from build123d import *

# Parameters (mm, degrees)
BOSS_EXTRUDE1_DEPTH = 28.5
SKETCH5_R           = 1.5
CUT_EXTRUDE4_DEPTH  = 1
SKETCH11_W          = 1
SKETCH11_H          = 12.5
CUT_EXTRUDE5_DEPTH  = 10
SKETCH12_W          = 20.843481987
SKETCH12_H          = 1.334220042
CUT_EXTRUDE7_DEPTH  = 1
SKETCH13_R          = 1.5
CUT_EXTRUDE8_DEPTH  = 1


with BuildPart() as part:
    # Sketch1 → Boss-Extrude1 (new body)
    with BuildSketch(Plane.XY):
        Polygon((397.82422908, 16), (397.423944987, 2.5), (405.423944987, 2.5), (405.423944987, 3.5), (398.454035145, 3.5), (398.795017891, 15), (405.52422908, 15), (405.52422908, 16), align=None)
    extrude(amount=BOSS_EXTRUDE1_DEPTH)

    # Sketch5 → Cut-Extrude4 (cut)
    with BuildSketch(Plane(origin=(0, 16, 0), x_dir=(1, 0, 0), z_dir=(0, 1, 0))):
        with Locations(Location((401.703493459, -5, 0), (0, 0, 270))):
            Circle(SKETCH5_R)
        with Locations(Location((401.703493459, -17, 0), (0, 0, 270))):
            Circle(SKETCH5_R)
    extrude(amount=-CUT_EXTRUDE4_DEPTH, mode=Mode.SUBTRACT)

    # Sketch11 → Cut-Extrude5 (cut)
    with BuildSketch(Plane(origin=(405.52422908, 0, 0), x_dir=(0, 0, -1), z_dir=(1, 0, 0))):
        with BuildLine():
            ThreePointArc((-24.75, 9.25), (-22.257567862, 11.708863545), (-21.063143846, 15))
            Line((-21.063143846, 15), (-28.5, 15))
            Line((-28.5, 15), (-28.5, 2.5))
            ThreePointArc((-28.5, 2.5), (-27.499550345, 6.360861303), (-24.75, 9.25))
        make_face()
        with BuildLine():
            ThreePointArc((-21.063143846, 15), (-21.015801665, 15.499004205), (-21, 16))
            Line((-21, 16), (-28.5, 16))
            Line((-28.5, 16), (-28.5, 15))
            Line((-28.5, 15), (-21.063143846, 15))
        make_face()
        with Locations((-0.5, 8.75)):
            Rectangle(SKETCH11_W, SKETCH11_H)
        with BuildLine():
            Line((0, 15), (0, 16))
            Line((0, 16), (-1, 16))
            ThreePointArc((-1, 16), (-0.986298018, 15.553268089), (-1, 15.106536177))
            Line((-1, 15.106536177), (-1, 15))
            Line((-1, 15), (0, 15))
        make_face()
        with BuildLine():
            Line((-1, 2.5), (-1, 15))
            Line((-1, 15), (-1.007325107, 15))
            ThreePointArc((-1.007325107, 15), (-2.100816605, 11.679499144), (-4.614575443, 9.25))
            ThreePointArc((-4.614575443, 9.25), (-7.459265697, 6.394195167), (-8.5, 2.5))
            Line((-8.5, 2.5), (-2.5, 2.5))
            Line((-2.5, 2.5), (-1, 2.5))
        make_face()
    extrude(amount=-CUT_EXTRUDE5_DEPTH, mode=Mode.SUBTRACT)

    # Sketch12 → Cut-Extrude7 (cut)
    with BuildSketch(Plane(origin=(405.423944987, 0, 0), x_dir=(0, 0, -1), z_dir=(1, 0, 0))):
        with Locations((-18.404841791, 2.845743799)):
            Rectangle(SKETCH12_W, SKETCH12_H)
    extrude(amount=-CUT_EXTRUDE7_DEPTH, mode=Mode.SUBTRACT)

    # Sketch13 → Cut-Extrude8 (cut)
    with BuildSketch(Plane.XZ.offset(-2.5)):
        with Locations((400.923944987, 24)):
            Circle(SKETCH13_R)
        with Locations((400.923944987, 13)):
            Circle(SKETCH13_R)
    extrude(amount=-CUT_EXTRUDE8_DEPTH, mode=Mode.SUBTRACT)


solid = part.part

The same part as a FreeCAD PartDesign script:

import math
import FreeCAD as App
import Part
import Sketcher
from FreeCAD import Vector
Q = App.Units.Quantity

doc = App.newDocument("Part")
body = doc.addObject("PartDesign::Body", "Body")

sketch1 = body.newObject("Sketcher::SketchObject", "Sketch")
sketch1.AttachmentSupport = (doc.getObject("XY_Plane"), [""])
sketch1.MapMode = "FlatFace"
sketch1.addGeometry([
    Part.LineSegment(Vector(397.824229, 16, 0), Vector(397.423945, 2.5, 0)),
    Part.LineSegment(Vector(397.423945, 2.5, 0), Vector(405.423945, 2.5, 0)),
    Part.LineSegment(Vector(405.423945, 2.5, 0), Vector(405.423945, 3.5, 0)),
    Part.LineSegment(Vector(405.423945, 3.5, 0), Vector(398.454035, 3.5, 0)),
    Part.LineSegment(Vector(398.454035, 3.5, 0), Vector(398.795018, 15, 0)),
    Part.LineSegment(Vector(398.795018, 15, 0), Vector(405.524229, 15, 0)),
    Part.LineSegment(Vector(405.524229, 15, 0), Vector(405.524229, 16, 0)),
    Part.LineSegment(Vector(405.524229, 16, 0), Vector(397.824229, 16, 0)),
], False)
sketch1.addConstraint([
    Sketcher.Constraint("Coincident", 0, 2, 1, 1),
    Sketcher.Constraint("Coincident", 1, 2, 2, 1),
    Sketcher.Constraint("Coincident", 2, 2, 3, 1),
    Sketcher.Constraint("Coincident", 3, 2, 4, 1),
    Sketcher.Constraint("Coincident", 4, 2, 5, 1),
    Sketcher.Constraint("Coincident", 5, 2, 6, 1),
    Sketcher.Constraint("Coincident", 6, 2, 7, 1),
    Sketcher.Constraint("Coincident", 7, 2, 0, 1),
    Sketcher.Constraint("Horizontal", 1),
    Sketcher.Constraint("Vertical", 2),
    Sketcher.Constraint("Horizontal", 3),
    Sketcher.Constraint("Horizontal", 5),
    Sketcher.Constraint("Vertical", 6),
    Sketcher.Constraint("Horizontal", 7),
    Sketcher.Constraint("Parallel", 0, 4),
    Sketcher.Constraint("Equal", 2, 6),
    Sketcher.Constraint("DistanceX", 1, 1, 1, 2, Q("8 mm")),
    Sketcher.Constraint("DistanceY", 2, 1, 2, 2, Q("1 mm")),
    Sketcher.Constraint("DistanceX", 7, 2, 7, 1, Q("7.7 mm")),
    Sketcher.Constraint("DistanceY", -1, 1, 4, 2, Q("15 mm")),
    Sketcher.Constraint("DistanceY", -1, 1, 0, 2, Q("2.5 mm")),
    Sketcher.Constraint("DistanceX", 3, 2, 3, 1, Q("6.96991 mm")),
    Sketcher.Constraint("DistanceX", 5, 1, 5, 2, Q("6.729211 mm")),
    Sketcher.Constraint("DistanceX", -1, 1, 5, 2, Q("405.524229 mm")),
])
pad1 = body.newObject("PartDesign::Pad", "Pad")
pad1.Profile = sketch1
pad1.Length = 28.5

sketch2 = body.newObject("Sketcher::SketchObject", "Sketch001")
sketch2.AttachmentSupport = (doc.getObject("XZ_Plane"), [""])
sketch2.MapMode = "FlatFace"
sketch2.AttachmentOffset = App.Placement(Vector(0, 0, -16), App.Rotation())
sketch2.addGeometry([
    Part.Circle(Vector(401.703493, 5, 0), Vector(0, 0, 1), 1.5),
    Part.Circle(Vector(401.703493, 17, 0), Vector(0, 0, 1), 1.5),
], False)
sketch2.addConstraint([
    Sketcher.Constraint("Equal", 0, 1),
    Sketcher.Constraint("Vertical", 0, 3, 1, 3),
    Sketcher.Constraint("Diameter", 0, Q("3 mm")),
    Sketcher.Constraint("DistanceY", -1, 1, 0, 3, Q("5 mm")),
    Sketcher.Constraint("DistanceY", -1, 1, 1, 3, Q("17 mm")),
    Sketcher.Constraint("DistanceX", -1, 1, 0, 3, Q("401.703493 mm")),
])
pocket1 = body.newObject("PartDesign::Pocket", "Pocket")
pocket1.Profile = sketch2
pocket1.Length = 1
pocket1.Reversed = True

sketch3 = body.newObject("Sketcher::SketchObject", "Sketch002")
sketch3.AttachmentSupport = (doc.getObject("YZ_Plane"), [""])
sketch3.MapMode = "FlatFace"
sketch3.AttachmentOffset = App.Placement(Vector(0, 0, 405.524229), App.Rotation())
sketch3.addGeometry([
    Part.ArcOfCircle(Part.Circle(Vector(16, 28.95, 0), Vector(0, 0, 1), 7.95), math.radians(-148.109208), math.radians(-97.226158)),
    Part.ArcOfCircle(Part.Circle(Vector(16, 28.95, 0), Vector(0, 0, 1), 7.95), math.radians(-97.226158), math.radians(-90)),
    Part.LineSegment(Vector(16, 21, 0), Vector(16, 28.5, 0)),
    Part.LineSegment(Vector(16, 28.5, 0), Vector(2.5, 28.5, 0)),
    Part.ArcOfCircle(Part.Circle(Vector(2.5, 20.55, 0), Vector(0, 0, 1), 7.95), math.radians(31.890792), math.radians(90)),
    Part.LineSegment(Vector(2.5, 0, 0), Vector(16, 0, 0)),
    Part.LineSegment(Vector(16, 0, 0), Vector(16, 1, 0)),
    Part.ArcOfCircle(Part.Circle(Vector(15.553268, 8.27565, 0), Vector(0, 0, 1), 7.289352), math.radians(-93.513605), math.radians(-86.486395)),
    Part.LineSegment(Vector(15.106536, 1, 0), Vector(15, 1, 0)),
    Part.LineSegment(Vector(15, 1, 0), Vector(15, 1.007325, 0)),
    Part.ArcOfCircle(Part.Circle(Vector(15.553268, 8.27565, 0), Vector(0, 0, 1), 7.289352), math.radians(-149.85105), math.radians(-94.352985)),
    Part.ArcOfCircle(Part.Circle(Vector(2.5, 0.694029, 0), Vector(0, 0, 1), 7.805971), math.radians(30.14895), math.radians(90)),
    Part.LineSegment(Vector(2.5, 8.5, 0), Vector(2.5, 0, 0)),
], False)
sketch3.addConstraint([
    Sketcher.Constraint("Tangent", 0, 2, 1, 1),
    Sketcher.Constraint("Coincident", 1, 2, 2, 1),
    Sketcher.Constraint("Coincident", 2, 2, 3, 1),
    Sketcher.Constraint("Tangent", 3, 2, 4, 2),
    Sketcher.Constraint("Tangent", 4, 1, 0, 1),
    Sketcher.Constraint("Coincident", 5, 2, 6, 1),
    Sketcher.Constraint("Coincident", 6, 2, 7, 2),
    Sketcher.Constraint("Coincident", 7, 1, 8, 1),
    Sketcher.Constraint("Coincident", 8, 2, 9, 1),
    Sketcher.Constraint("Coincident", 9, 2, 10, 2),
    Sketcher.Constraint("Tangent", 10, 1, 11, 1),
    Sketcher.Constraint("Coincident", 11, 2, 12, 1),
    Sketcher.Constraint("Coincident", 12, 2, 5, 1),
    Sketcher.Constraint("Vertical", 2),
    Sketcher.Constraint("Horizontal", 3),
    Sketcher.Constraint("Horizontal", 5),
    Sketcher.Constraint("Vertical", 6),
    Sketcher.Constraint("Horizontal", 8),
    Sketcher.Constraint("Vertical", 9),
    Sketcher.Constraint("Vertical", 12),
    Sketcher.Constraint("Coincident", 10, 3, 7, 3),
    Sketcher.Constraint("Equal", 0, 1),
    Sketcher.Constraint("Equal", 1, 4),
    Sketcher.Constraint("Equal", 7, 10),
    Sketcher.Constraint("PointOnObject", 5, 2, -1),
    Sketcher.Constraint("Horizontal", 6, 2, 7, 1),
    Sketcher.Constraint("Vertical", 4, 3, 11, 3),
    Sketcher.Constraint("Vertical", 0, 3, 1, 2),
    Sketcher.Constraint("Vertical", 2, 2, 5, 2),
    Sketcher.Constraint("Vertical", 0, 2, 8, 2),
    Sketcher.Constraint("Vertical", 4, 1, 10, 1),
    Sketcher.Constraint("Vertical", 3, 2, 11, 2),
    Sketcher.Constraint("DistanceY", 6, 1, 6, 2, Q("1 mm")),
    Sketcher.Constraint("Radius", 0, Q("7.95 mm")),
    Sketcher.Constraint("DistanceX", 3, 2, 3, 1, Q("13.5 mm")),
    Sketcher.Constraint("DistanceY", 12, 2, 12, 1, Q("8.5 mm")),
    Sketcher.Constraint("DistanceX", -1, 1, 0, 3, Q("16 mm")),
    Sketcher.Constraint("DistanceX", -1, 1, 0, 2, Q("15 mm")),
    Sketcher.Constraint("DistanceY", -1, 1, 1, 2, Q("21 mm")),
    Sketcher.Constraint("Radius", 11, Q("7.805971 mm")),
])
pocket2 = body.newObject("PartDesign::Pocket", "Pocket001")
pocket2.Profile = sketch3
pocket2.Length = 10

sketch4 = body.newObject("Sketcher::SketchObject", "Sketch003")
sketch4.AttachmentSupport = (doc.getObject("YZ_Plane"), [""])
sketch4.MapMode = "FlatFace"
sketch4.AttachmentOffset = App.Placement(Vector(0, 0, 405.423945), App.Rotation())
sketch4.addGeometry([
    Part.LineSegment(Vector(3.512854, 28.826583, 0), Vector(2.178634, 28.826583, 0)),
    Part.LineSegment(Vector(2.178634, 28.826583, 0), Vector(2.178634, 7.983101, 0)),
    Part.LineSegment(Vector(2.178634, 7.983101, 0), Vector(3.512854, 7.983101, 0)),
    Part.LineSegment(Vector(3.512854, 7.983101, 0), Vector(3.512854, 28.826583, 0)),
], False)
sketch4.addConstraint([
    Sketcher.Constraint("Coincident", 0, 2, 1, 1),
    Sketcher.Constraint("Coincident", 1, 2, 2, 1),
    Sketcher.Constraint("Coincident", 2, 2, 3, 1),
    Sketcher.Constraint("Coincident", 3, 2, 0, 1),
    Sketcher.Constraint("Horizontal", 0),
    Sketcher.Constraint("Vertical", 1),
    Sketcher.Constraint("Horizontal", 2),
    Sketcher.Constraint("Vertical", 3),
    Sketcher.Constraint("DistanceX", 0, 2, 0, 1, Q("1.33422 mm")),
    Sketcher.Constraint("DistanceY", 1, 2, 1, 1, Q("20.843482 mm")),
    Sketcher.Constraint("DistanceY", -1, 1, 1, 2, Q("7.983101 mm")),
    Sketcher.Constraint("DistanceX", -1, 1, 0, 2, Q("2.178634 mm")),
])
pocket3 = body.newObject("PartDesign::Pocket", "Pocket002")
pocket3.Profile = sketch4
pocket3.Length = 1

sketch5 = body.newObject("Sketcher::SketchObject", "Sketch004")
sketch5.AttachmentSupport = (doc.getObject("XZ_Plane"), [""])
sketch5.MapMode = "FlatFace"
sketch5.AttachmentOffset = App.Placement(Vector(0, 0, -2.5), App.Rotation())
sketch5.addGeometry([
    Part.Circle(Vector(400.923945, 24, 0), Vector(0, 0, 1), 1.5),
    Part.Circle(Vector(400.923945, 13, 0), Vector(0, 0, 1), 1.5),
], False)
sketch5.addConstraint([
    Sketcher.Constraint("Equal", 0, 1),
    Sketcher.Constraint("Vertical", 0, 3, 1, 3),
    Sketcher.Constraint("Diameter", 0, Q("3 mm")),
    Sketcher.Constraint("DistanceY", -1, 1, 0, 3, Q("24 mm")),
    Sketcher.Constraint("DistanceY", -1, 1, 1, 3, Q("13 mm")),
    Sketcher.Constraint("DistanceX", -1, 1, 0, 3, Q("400.923945 mm")),
])
pocket4 = body.newObject("PartDesign::Pocket", "Pocket003")
pocket4.Profile = sketch5
pocket4.Length = 1

doc.recompute()
